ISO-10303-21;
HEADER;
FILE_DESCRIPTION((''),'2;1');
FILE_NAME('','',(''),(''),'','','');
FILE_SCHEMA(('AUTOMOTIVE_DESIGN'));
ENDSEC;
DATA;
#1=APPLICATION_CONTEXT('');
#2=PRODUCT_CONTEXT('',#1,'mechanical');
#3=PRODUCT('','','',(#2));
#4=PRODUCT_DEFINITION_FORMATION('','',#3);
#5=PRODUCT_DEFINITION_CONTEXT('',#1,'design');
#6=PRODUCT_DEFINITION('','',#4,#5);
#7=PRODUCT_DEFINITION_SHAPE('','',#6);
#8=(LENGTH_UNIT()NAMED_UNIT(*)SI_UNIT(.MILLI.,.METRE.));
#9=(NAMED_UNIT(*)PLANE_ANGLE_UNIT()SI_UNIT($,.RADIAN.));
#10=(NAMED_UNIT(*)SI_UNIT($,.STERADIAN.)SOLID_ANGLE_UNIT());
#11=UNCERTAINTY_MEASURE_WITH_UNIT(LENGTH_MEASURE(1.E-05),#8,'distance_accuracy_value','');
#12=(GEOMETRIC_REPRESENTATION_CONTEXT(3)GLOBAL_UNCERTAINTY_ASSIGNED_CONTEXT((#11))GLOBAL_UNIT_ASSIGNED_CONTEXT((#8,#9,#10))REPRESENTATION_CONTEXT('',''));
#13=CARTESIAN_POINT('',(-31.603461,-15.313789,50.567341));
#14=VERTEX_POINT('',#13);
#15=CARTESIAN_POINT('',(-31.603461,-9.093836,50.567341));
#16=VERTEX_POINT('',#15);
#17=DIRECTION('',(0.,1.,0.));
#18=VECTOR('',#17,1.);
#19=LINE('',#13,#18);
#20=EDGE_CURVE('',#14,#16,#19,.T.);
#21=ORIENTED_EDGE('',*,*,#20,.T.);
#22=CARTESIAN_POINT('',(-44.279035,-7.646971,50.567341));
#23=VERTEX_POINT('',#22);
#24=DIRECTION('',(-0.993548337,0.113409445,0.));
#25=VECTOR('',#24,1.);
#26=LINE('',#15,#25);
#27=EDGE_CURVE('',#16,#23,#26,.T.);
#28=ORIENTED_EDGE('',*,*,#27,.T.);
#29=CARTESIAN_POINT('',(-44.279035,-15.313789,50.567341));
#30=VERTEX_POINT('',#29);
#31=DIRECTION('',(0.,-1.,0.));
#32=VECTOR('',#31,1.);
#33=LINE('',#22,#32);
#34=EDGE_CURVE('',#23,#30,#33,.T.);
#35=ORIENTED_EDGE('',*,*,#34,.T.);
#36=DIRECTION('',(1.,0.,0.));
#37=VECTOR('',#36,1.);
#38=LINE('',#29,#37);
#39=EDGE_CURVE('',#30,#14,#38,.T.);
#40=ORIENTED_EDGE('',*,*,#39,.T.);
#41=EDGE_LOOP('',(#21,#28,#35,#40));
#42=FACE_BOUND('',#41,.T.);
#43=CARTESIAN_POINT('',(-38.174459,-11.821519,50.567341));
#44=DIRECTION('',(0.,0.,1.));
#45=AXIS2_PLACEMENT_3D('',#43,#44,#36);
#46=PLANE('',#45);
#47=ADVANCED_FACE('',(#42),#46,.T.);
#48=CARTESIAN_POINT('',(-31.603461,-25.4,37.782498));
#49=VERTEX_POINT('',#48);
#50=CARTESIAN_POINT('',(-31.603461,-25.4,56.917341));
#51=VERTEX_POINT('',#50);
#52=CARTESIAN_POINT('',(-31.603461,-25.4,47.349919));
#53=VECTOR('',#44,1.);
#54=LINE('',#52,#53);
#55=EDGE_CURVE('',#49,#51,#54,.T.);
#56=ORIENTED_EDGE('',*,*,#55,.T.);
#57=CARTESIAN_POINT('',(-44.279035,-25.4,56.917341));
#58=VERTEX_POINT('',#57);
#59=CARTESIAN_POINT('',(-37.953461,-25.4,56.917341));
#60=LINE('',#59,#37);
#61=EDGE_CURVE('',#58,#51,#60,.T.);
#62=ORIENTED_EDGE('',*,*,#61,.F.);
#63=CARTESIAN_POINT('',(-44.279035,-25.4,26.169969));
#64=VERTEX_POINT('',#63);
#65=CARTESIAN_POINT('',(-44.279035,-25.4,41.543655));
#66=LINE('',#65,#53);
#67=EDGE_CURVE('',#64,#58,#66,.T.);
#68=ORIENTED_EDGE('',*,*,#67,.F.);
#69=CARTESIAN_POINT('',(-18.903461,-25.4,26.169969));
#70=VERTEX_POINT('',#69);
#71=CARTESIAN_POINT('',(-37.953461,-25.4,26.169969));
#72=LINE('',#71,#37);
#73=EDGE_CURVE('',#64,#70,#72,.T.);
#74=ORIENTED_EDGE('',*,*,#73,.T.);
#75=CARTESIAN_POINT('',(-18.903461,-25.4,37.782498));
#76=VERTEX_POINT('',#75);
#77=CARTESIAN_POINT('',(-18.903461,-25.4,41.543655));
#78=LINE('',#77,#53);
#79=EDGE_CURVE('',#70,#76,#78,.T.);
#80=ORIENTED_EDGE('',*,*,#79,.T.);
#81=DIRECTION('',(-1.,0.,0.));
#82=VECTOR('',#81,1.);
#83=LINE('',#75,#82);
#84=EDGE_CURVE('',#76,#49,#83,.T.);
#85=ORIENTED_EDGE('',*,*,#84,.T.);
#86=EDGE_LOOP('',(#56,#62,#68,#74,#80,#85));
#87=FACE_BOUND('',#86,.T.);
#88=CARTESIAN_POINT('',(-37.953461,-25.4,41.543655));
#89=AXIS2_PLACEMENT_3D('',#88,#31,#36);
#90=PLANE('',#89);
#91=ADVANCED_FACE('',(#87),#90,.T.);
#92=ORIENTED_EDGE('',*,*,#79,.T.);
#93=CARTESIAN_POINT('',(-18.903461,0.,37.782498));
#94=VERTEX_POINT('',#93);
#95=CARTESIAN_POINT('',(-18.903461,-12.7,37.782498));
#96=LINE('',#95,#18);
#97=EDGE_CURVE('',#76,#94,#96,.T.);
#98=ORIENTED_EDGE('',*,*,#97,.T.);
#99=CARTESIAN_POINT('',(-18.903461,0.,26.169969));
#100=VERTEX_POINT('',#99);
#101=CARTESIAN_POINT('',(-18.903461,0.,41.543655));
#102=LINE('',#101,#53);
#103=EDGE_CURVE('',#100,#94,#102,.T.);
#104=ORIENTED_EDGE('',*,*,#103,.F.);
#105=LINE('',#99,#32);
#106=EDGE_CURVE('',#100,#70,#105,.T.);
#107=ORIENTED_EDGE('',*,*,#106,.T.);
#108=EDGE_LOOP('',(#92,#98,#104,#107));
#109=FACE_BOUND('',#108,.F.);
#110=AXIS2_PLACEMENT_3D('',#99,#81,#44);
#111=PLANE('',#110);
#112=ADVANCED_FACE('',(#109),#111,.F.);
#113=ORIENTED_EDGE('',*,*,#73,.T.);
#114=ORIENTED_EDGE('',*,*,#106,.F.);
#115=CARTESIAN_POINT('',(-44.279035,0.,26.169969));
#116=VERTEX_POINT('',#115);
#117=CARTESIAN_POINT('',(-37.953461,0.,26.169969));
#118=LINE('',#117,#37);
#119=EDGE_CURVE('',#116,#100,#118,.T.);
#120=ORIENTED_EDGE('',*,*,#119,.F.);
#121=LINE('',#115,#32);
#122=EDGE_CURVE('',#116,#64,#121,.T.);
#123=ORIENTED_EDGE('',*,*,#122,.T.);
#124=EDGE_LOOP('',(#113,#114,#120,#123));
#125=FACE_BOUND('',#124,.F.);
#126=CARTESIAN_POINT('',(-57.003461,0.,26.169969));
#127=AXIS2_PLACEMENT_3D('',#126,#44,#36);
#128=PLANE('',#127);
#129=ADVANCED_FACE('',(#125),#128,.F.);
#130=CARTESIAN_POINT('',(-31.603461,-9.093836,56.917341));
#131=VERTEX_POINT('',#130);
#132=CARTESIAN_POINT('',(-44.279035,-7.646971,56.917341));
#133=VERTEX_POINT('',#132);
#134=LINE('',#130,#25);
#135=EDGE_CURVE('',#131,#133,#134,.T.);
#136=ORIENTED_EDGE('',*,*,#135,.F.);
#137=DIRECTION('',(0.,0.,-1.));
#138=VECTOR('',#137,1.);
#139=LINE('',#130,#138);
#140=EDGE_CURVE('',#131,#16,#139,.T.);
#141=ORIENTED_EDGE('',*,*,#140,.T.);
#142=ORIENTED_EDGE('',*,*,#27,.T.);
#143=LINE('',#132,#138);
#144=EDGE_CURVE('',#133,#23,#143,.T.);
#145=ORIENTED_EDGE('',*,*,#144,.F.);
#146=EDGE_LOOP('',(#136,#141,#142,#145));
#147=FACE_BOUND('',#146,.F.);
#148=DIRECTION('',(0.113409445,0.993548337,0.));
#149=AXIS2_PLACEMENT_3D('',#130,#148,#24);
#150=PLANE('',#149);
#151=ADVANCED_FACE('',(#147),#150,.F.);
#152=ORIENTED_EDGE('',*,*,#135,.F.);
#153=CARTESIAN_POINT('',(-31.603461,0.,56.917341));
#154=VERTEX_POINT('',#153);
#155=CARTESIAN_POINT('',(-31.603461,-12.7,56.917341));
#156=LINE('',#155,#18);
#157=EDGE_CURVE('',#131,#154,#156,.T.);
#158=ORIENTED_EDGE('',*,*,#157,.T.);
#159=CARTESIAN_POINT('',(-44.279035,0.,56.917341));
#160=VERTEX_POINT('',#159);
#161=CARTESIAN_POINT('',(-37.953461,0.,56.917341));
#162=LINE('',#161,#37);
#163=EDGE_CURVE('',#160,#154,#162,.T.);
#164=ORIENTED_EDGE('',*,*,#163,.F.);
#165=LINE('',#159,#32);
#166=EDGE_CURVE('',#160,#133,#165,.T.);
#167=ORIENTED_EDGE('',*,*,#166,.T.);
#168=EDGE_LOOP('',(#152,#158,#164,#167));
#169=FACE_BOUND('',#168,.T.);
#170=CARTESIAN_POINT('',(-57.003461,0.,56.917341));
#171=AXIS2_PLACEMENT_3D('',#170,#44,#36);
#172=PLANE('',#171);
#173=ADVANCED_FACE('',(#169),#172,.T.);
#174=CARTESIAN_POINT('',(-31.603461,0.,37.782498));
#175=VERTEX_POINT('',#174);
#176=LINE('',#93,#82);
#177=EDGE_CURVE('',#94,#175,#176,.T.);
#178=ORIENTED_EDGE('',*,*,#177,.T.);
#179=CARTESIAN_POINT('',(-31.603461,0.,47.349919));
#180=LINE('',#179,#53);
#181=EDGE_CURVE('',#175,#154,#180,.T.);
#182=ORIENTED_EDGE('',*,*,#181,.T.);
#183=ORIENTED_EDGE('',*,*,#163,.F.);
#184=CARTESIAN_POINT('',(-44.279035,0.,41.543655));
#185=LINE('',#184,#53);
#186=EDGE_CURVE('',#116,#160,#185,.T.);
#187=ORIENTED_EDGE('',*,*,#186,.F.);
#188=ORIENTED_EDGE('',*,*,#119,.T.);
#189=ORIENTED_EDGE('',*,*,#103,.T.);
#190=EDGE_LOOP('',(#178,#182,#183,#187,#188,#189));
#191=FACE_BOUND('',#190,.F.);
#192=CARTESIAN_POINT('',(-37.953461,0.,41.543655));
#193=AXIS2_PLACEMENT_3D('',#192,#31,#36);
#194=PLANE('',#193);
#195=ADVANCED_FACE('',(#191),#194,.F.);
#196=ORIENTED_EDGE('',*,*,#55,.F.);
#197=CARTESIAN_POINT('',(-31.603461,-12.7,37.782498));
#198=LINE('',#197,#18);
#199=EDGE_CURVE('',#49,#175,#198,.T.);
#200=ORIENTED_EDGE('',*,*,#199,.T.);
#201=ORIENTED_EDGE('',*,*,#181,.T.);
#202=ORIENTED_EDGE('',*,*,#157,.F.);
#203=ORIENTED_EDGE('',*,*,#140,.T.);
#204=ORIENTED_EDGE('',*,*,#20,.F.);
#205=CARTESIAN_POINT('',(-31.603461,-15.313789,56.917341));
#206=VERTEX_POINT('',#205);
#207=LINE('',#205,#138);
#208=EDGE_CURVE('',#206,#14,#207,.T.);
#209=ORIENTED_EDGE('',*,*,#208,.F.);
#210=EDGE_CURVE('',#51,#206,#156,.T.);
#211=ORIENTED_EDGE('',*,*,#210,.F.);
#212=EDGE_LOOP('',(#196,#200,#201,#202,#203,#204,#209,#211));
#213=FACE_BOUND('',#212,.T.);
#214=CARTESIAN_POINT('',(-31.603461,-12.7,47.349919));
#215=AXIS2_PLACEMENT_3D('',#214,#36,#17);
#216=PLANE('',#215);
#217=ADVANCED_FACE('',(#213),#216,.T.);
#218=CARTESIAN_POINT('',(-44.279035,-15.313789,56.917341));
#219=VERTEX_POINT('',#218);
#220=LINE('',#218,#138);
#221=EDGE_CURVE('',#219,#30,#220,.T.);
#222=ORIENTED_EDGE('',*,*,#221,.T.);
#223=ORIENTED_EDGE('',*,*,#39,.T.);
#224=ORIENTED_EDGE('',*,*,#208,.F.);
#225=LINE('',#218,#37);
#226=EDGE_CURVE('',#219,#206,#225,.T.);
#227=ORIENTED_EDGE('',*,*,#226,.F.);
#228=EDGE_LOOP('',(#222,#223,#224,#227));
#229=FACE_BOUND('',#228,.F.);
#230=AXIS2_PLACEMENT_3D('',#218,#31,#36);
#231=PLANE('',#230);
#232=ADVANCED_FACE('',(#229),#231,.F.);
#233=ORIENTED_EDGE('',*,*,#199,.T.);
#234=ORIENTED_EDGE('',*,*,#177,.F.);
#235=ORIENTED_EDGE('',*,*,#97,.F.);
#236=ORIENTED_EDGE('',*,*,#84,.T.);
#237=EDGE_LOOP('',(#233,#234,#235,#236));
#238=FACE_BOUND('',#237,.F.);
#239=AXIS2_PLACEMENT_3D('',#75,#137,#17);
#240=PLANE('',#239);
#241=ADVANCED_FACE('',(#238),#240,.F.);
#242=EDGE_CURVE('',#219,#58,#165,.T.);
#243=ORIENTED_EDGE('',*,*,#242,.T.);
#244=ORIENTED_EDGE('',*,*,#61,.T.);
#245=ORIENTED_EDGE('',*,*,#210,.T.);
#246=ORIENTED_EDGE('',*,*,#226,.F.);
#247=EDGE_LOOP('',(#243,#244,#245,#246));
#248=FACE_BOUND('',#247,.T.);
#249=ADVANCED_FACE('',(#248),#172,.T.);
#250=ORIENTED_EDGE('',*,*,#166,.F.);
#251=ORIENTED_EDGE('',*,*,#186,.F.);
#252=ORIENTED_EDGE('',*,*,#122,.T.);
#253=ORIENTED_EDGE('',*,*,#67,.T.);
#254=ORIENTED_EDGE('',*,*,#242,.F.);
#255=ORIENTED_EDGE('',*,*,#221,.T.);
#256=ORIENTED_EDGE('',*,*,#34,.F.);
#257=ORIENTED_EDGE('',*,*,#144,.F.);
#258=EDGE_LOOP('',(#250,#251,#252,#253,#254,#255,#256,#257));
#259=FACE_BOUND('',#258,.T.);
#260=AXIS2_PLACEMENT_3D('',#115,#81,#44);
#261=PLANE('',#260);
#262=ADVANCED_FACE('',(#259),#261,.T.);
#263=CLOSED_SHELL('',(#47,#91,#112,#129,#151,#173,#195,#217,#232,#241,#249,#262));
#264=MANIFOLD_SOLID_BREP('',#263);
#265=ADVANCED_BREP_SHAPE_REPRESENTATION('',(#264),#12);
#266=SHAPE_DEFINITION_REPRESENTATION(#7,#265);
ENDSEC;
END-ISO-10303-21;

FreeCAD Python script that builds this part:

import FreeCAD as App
import Part
import Sketcher
from FreeCAD import Vector
Q = App.Units.Quantity


def add_polygon(sketch, points):
    """Adds a closed chain of lines whose ends are joined by coincident constraints."""
    first, n = sketch.GeometryCount, len(points)
    for a, b in zip(points, points[1:] + points[:1]):
        sketch.addGeometry(Part.LineSegment(App.Vector(*a, 0), App.Vector(*b, 0)), False)
    for i in range(n):
        sketch.addConstraint(Sketcher.Constraint("Coincident", first + i, 2, first + (i + 1) % n, 1))

doc = App.newDocument("Part")
body = doc.addObject("PartDesign::Body", "Body")

# Sketch on XZ plane
sketch1 = body.newObject("Sketcher::SketchObject", "Sketch")
sketch1.AttachmentSupport = (doc.getObject("XZ_Plane"), [""])
sketch1.MapMode = "FlatFace"
add_polygon(sketch1, [(-57.003461, 56.917341), (-57.003461, 26.169969), (-18.903461, 26.169969), (-18.903461, 56.917341)])  # lines 0-3
sketch1.addConstraint([
    Sketcher.Constraint("Vertical", 0),
    Sketcher.Constraint("Horizontal", 1),
    Sketcher.Constraint("Vertical", 2),
    Sketcher.Constraint("Horizontal", 3),
    Sketcher.Constraint("DistanceX", 1, 1, 1, 2, Q("1.5 in")),
    Sketcher.Constraint("DistanceY", 0, 2, 0, 1, Q("30.747372 mm")),
    Sketcher.Constraint("DistanceX", 0, 2, -1, 1, Q("57.003461 mm")),
    Sketcher.Constraint("DistanceY", -1, 1, 0, 2, Q("26.169969 mm")),
])
pad1 = body.newObject("PartDesign::Pad", "Pad")
pad1.Profile = sketch1
pad1.Length = Q("1 in")

# Sketch on YZ plane
sketch2 = body.newObject("Sketcher::SketchObject", "Sketch001")
sketch2.AttachmentSupport = (doc.getObject("YZ_Plane"), [""])
sketch2.MapMode = "FlatFace"
sketch2.AttachmentOffset = App.Placement(Vector(0, 0, -18.903461), App.Rotation())
add_polygon(sketch2, [(-25.4, 56.917341), (-25.4, 37.782498), (0, 37.782498), (0, 56.917341)])  # lines 0-3
sketch2.addConstraint([
    Sketcher.Constraint("Vertical", 0),
    Sketcher.Constraint("Horizontal", 1),
    Sketcher.Constraint("Vertical", 2),
    Sketcher.Constraint("Horizontal", 3),
    Sketcher.Constraint("PointOnObject", 1, 2, -2),
    Sketcher.Constraint("DistanceX", 1, 1, 1, 2, Q("1 in")),
    Sketcher.Constraint("DistanceY", -1, 1, 0, 2, Q("1.4874999 in")),
    Sketcher.Constraint("DistanceY", 0, 2, 0, 1, Q("19.134843 mm")),
])
pocket1 = body.newObject("PartDesign::Pocket", "Pocket")
pocket1.Profile = sketch2
pocket1.Length = Q("0.5 in")

# Sketch on XZ plane
sketch3 = body.newObject("Sketcher::SketchObject", "Sketch002")
sketch3.AttachmentSupport = (doc.getObject("XZ_Plane"), [""])
sketch3.MapMode = "FlatFace"
add_polygon(sketch3, [(-44.279035, 56.917341), (-44.279035, 26.169969), (-57.003461, 26.169969), (-57.003461, 56.917341)])  # lines 0-3
sketch3.addConstraint([
    Sketcher.Constraint("Vertical", 0),
    Sketcher.Constraint("Horizontal", 1),
    Sketcher.Constraint("Vertical", 2),
    Sketcher.Constraint("Horizontal", 3),
    Sketcher.Constraint("DistanceY", 0, 2, 0, 1, Q("30.747372 mm")),
    Sketcher.Constraint("DistanceX", 1, 2, 1, 1, Q("12.724425 mm")),
    Sketcher.Constraint("DistanceY", -1, 1, 0, 2, Q("26.169969 mm")),
    Sketcher.Constraint("DistanceX", 1, 2, -1, 1, Q("57.003461 mm")),
])
pocket2 = body.newObject("PartDesign::Pocket", "Pocket001")
pocket2.Profile = sketch3
pocket2.Length = Q("1 in")
pocket2.Reversed = True

# Sketch on XY plane
sketch4 = body.newObject("Sketcher::SketchObject", "Sketch003")
sketch4.AttachmentSupport = (doc.getObject("XY_Plane"), [""])
sketch4.MapMode = "FlatFace"
sketch4.AttachmentOffset = App.Placement(Vector(0, 0, 56.917341), App.Rotation())
add_polygon(sketch4, [(-44.279035, -7.646971), (-44.279035, -15.313789), (-31.603461, -15.313789), (-31.603461, -9.093836)])  # lines 0-3
sketch4.addConstraint([
    Sketcher.Constraint("Vertical", 0),
    Sketcher.Constraint("Horizontal", 1),
    Sketcher.Constraint("Vertical", 2),
    Sketcher.Constraint("DistanceX", 1, 1, 1, 2, Q("12.675575 mm")),
    Sketcher.Constraint("DistanceY", 0, 2, 0, 1, Q("7.666818 mm")),
    Sketcher.Constraint("DistanceY", 2, 1, 2, 2, Q("6.219953 mm")),
    Sketcher.Constraint("DistanceY", 0, 2, -1, 1, Q("15.313789 mm")),
    Sketcher.Constraint("DistanceX", 1, 2, -1, 1, Q("31.603461 mm")),
])
pocket3 = body.newObject("PartDesign::Pocket", "Pocket002")
pocket3.Profile = sketch4
pocket3.Length = Q("0.25 in")

doc.recompute()
